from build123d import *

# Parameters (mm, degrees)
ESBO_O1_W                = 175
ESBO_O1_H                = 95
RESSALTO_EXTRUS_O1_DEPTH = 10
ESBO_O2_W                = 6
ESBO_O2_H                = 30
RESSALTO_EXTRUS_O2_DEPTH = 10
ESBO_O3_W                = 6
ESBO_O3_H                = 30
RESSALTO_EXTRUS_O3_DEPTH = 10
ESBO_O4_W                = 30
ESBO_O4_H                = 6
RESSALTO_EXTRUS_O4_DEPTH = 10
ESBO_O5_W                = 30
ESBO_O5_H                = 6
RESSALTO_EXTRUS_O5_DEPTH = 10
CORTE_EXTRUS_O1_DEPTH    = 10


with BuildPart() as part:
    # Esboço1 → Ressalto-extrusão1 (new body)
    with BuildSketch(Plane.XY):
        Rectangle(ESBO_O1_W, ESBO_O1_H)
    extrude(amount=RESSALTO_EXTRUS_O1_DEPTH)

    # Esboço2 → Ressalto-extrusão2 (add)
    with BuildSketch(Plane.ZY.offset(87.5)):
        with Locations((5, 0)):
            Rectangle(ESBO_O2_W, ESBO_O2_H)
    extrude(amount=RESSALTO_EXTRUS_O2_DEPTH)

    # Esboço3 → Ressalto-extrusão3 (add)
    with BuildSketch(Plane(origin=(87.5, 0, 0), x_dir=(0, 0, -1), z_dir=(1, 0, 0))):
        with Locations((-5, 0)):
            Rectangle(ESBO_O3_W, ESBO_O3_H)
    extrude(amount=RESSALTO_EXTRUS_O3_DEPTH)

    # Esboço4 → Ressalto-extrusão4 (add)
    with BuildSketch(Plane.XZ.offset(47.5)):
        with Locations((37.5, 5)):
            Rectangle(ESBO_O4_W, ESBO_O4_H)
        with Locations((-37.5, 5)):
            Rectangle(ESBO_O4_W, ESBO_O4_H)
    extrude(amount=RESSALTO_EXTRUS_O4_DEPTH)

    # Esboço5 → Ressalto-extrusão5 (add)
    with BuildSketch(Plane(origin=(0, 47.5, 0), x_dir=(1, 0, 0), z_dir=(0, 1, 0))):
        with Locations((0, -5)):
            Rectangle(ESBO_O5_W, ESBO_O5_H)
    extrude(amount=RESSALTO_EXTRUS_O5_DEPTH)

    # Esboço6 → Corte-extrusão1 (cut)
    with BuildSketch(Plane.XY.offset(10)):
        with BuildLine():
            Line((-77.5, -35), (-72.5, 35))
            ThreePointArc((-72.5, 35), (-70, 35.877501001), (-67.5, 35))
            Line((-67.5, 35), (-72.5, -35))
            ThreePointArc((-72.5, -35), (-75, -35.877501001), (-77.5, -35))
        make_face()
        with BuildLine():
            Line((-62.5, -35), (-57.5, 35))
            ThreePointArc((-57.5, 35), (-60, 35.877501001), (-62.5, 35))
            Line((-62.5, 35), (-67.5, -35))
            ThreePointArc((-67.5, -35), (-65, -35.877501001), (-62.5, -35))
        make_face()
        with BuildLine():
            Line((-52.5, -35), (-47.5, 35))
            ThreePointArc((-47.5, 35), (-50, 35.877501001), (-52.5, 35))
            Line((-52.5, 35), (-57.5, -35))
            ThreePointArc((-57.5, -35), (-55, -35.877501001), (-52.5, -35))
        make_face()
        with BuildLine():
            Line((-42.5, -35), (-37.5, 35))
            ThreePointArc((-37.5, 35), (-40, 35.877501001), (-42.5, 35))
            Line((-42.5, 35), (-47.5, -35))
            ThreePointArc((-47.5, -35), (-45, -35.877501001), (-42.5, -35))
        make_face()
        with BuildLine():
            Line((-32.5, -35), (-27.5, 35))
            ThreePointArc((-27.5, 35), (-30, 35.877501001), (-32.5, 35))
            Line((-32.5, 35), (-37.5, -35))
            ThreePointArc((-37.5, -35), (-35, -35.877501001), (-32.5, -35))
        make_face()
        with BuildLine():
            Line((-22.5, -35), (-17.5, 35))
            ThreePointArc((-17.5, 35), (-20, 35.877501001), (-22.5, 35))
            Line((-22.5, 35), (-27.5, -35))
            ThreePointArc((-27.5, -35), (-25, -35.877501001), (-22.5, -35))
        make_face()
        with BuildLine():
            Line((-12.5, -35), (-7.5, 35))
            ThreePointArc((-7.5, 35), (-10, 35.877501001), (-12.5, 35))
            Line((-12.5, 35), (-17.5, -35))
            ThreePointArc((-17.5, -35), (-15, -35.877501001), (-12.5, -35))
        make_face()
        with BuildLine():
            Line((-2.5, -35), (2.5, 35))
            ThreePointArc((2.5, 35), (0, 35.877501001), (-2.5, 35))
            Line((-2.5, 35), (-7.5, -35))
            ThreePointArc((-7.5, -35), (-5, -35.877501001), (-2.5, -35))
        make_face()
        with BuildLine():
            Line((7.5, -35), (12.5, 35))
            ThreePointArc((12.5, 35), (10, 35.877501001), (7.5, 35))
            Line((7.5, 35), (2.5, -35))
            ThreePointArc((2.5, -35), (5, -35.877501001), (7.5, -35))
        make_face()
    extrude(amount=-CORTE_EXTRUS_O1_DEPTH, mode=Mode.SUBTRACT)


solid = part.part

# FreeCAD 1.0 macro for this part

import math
import FreeCAD as App
import Part
import Sketcher
Q = App.Units.Quantity

doc = App.newDocument("Part")
body = doc.addObject("PartDesign::Body", "Body")

# Sketch on XY plane
sketch1 = doc.addObject("Sketcher::SketchObject", "Sketch")
body.addObject(sketch1)
sketch1.AttachmentSupport = (doc.XY_Plane, [""])
sketch1.MapMode = "FlatFace"
sketch1.addGeometry(Part.LineSegment(App.Vector(-87.5, 47.5, 0), App.Vector(-87.5, -47.5, 0)), False)
sketch1.addGeometry(Part.LineSegment(App.Vector(-87.5, -47.5, 0), App.Vector(87.5, -47.5, 0)), False)
sketch1.addGeometry(Part.LineSegment(App.Vector(87.5, -47.5, 0), App.Vector(87.5, 47.5, 0)), False)
sketch1.addGeometry(Part.LineSegment(App.Vector(87.5, 47.5, 0), App.Vector(-87.5, 47.5, 0)), False)
sketch1.addConstraint(Sketcher.Constraint("Coincident", 0, 2, 1, 1))
sketch1.addConstraint(Sketcher.Constraint("Coincident", 1, 2, 2, 1))
sketch1.addConstraint(Sketcher.Constraint("Coincident", 2, 2, 3, 1))
sketch1.addConstraint(Sketcher.Constraint("Coincident", 3, 2, 0, 1))
sketch1.addConstraint(Sketcher.Constraint("Vertical", 0))
sketch1.addConstraint(Sketcher.Constraint("Horizontal", 1))
sketch1.addConstraint(Sketcher.Constraint("Vertical", 2))
sketch1.addConstraint(Sketcher.Constraint("Horizontal", 3))
sketch1.addConstraint(Sketcher.Constraint("Symmetric", 0, 2, 2, 2, -1, 1))
sketch1.addConstraint(Sketcher.Constraint("DistanceX", 1, 1, 1, 2, Q("175 mm")))
sketch1.addConstraint(Sketcher.Constraint("DistanceY", 0, 2, 0, 1, Q("95 mm")))
pad1 = doc.addObject("PartDesign::Pad", "Pad")
body.addObject(pad1)
pad1.Profile = sketch1
pad1.Length = 10

# Sketch on YZ plane
sketch2 = doc.addObject("Sketcher::SketchObject", "Sketch001")
body.addObject(sketch2)
sketch2.AttachmentSupport = (doc.YZ_Plane, [""])
sketch2.MapMode = "FlatFace"
sketch2.AttachmentOffset = App.Placement(App.Vector(0, 0, -87.5), App.Rotation())
sketch2.addGeometry(Part.LineSegment(App.Vector(15, 2, 0), App.Vector(-15, 2, 0)), False)
sketch2.addGeometry(Part.LineSegment(App.Vector(-15, 2, 0), App.Vector(-15, 8, 0)), False)
sketch2.addGeometry(Part.LineSegment(App.Vector(-15, 8, 0), App.Vector(15, 8, 0)), False)
sketch2.addGeometry(Part.LineSegment(App.Vector(15, 8, 0), App.Vector(15, 2, 0)), False)
sketch2.addConstraint(Sketcher.Constraint("Coincident", 0, 2, 1, 1))
sketch2.addConstraint(Sketcher.Constraint("Coincident", 1, 2, 2, 1))
sketch2.addConstraint(Sketcher.Constraint("Coincident", 2, 2, 3, 1))
sketch2.addConstraint(Sketcher.Constraint("Coincident", 3, 2, 0, 1))
sketch2.addConstraint(Sketcher.Constraint("Horizontal", 0))
sketch2.addConstraint(Sketcher.Constraint("Vertical", 1))
sketch2.addConstraint(Sketcher.Constraint("Horizontal", 2))
sketch2.addConstraint(Sketcher.Constraint("Vertical", 3))
sketch2.addConstraint(Sketcher.Constraint("DistanceX", 0, 2, 0, 1, Q("30 mm")))
sketch2.addConstraint(Sketcher.Constraint("DistanceY", 1, 1, 1, 2, Q("6 mm")))
sketch2.addConstraint(Sketcher.Constraint("DistanceX", 0, 2, -1, 1, Q("15 mm")))
sketch2.addConstraint(Sketcher.Constraint("DistanceY", -1, 1, 0, 2, Q("2 mm")))
pad2 = doc.addObject("PartDesign::Pad", "Pad001")
body.addObject(pad2)
pad2.Profile = sketch2
pad2.Length = 10
pad2.Reversed = True

# Sketch on YZ plane
sketch3 = doc.addObject("Sketcher::SketchObject", "Sketch002")
body.addObject(sketch3)
sketch3.AttachmentSupport = (doc.YZ_Plane, [""])
sketch3.MapMode = "FlatFace"
sketch3.AttachmentOffset = App.Placement(App.Vector(0, 0, 87.5), App.Rotation())
sketch3.addGeometry(Part.LineSegment(App.Vector(15, 8, 0), App.Vector(-15, 8, 0)), False)
sketch3.addGeometry(Part.LineSegment(App.Vector(-15, 8, 0), App.Vector(-15, 2, 0)), False)
sketch3.addGeometry(Part.LineSegment(App.Vector(-15, 2, 0), App.Vector(15, 2, 0)), False)
sketch3.addGeometry(Part.LineSegment(App.Vector(15, 2, 0), App.Vector(15, 8, 0)), False)
sketch3.addConstraint(Sketcher.Constraint("Coincident", 0, 2, 1, 1))
sketch3.addConstraint(Sketcher.Constraint("Coincident", 1, 2, 2, 1))
sketch3.addConstraint(Sketcher.Constraint("Coincident", 2, 2, 3, 1))
sketch3.addConstraint(Sketcher.Constraint("Coincident", 3, 2, 0, 1))
sketch3.addConstraint(Sketcher.Constraint("Horizontal", 0))
sketch3.addConstraint(Sketcher.Constraint("Vertical", 1))
sketch3.addConstraint(Sketcher.Constraint("Horizontal", 2))
sketch3.addConstraint(Sketcher.Constraint("Vertical", 3))
sketch3.addConstraint(Sketcher.Constraint("DistanceX", 0, 2, 0, 1, Q("30 mm")))
sketch3.addConstraint(Sketcher.Constraint("DistanceY", 1, 2, 1, 1, Q("6 mm")))
sketch3.addConstraint(Sketcher.Constraint("DistanceX", 0, 2, -1, 1, Q("15 mm")))
sketch3.addConstraint(Sketcher.Constraint("DistanceY", -1, 1, 0, 2, Q("8 mm")))
pad3 = doc.addObject("PartDesign::Pad", "Pad002")
body.addObject(pad3)
pad3.Profile = sketch3
pad3.Length = 10

# Sketch on XZ plane
sketch4 = doc.addObject("Sketcher::SketchObject", "Sketch003")
body.addObject(sketch4)
sketch4.AttachmentSupport = (doc.XZ_Plane, [""])
sketch4.MapMode = "FlatFace"
sketch4.AttachmentOffset = App.Placement(App.Vector(0, 0, 47.5), App.Rotation())
sketch4.addGeometry(Part.LineSegment(App.Vector(22.5, 8, 0), App.Vector(22.5, 2, 0)), False)
sketch4.addGeometry(Part.LineSegment(App.Vector(22.5, 2, 0), App.Vector(52.5, 2, 0)), False)
sketch4.addGeometry(Part.LineSegment(App.Vector(52.5, 2, 0), App.Vector(52.5, 8, 0)), False)
sketch4.addGeometry(Part.LineSegment(App.Vector(52.5, 8, 0), App.Vector(22.5, 8, 0)), False)
sketch4.addGeometry(Part.LineSegment(App.Vector(-52.5, 8, 0), App.Vector(-52.5, 2, 0)), False)
sketch4.addGeometry(Part.LineSegment(App.Vector(-52.5, 2, 0), App.Vector(-22.5, 2, 0)), False)
sketch4.addGeometry(Part.LineSegment(App.Vector(-22.5, 2, 0), App.Vector(-22.5, 8, 0)), False)
sketch4.addGeometry(Part.LineSegment(App.Vector(-22.5, 8, 0), App.Vector(-52.5, 8, 0)), False)
sketch4.addConstraint(Sketcher.Constraint("Coincident", 0, 2, 1, 1))
sketch4.addConstraint(Sketcher.Constraint("Coincident", 1, 2, 2, 1))
sketch4.addConstraint(Sketcher.Constraint("Coincident", 2, 2, 3, 1))
sketch4.addConstraint(Sketcher.Constraint("Coincident", 3, 2, 0, 1))
sketch4.addConstraint(Sketcher.Constraint("Coincident", 4, 2, 5, 1))
sketch4.addConstraint(Sketcher.Constraint("Coincident", 5, 2, 6, 1))
sketch4.addConstraint(Sketcher.Constraint("Coincident", 6, 2, 7, 1))
sketch4.addConstraint(Sketcher.Constraint("Coincident", 7, 2, 4, 1))
sketch4.addConstraint(Sketcher.Constraint("Vertical", 0))
sketch4.addConstraint(Sketcher.Constraint("Horizontal", 1))
sketch4.addConstraint(Sketcher.Constraint("Vertical", 2))
sketch4.addConstraint(Sketcher.Constraint("Horizontal", 3))
sketch4.addConstraint(Sketcher.Constraint("Vertical", 4))
sketch4.addConstraint(Sketcher.Constraint("Horizontal", 5))
sketch4.addConstraint(Sketcher.Constraint("Vertical", 6))
sketch4.addConstraint(Sketcher.Constraint("Horizontal", 7))
sketch4.addConstraint(Sketcher.Constraint("Symmetric", 1, 2, 4, 2, -2))
sketch4.addConstraint(Sketcher.Constraint("Symmetric", 3, 2, 6, 2, -2))
sketch4.addConstraint(Sketcher.Constraint("DistanceX", 1, 1, 1, 2, Q("30 mm")))
sketch4.addConstraint(Sketcher.Constraint("DistanceY", 0, 2, 0, 1, Q("6 mm")))
sketch4.addConstraint(Sketcher.Constraint("DistanceY", -1, 1, 0, 2, Q("2 mm")))
sketch4.addConstraint(Sketcher.Constraint("DistanceX", 4, 2, 0, 2, Q("75 mm")))
pad4 = doc.addObject("PartDesign::Pad", "Pad003")
body.addObject(pad4)
pad4.Profile = sketch4
pad4.Length = 10

# Sketch on XZ plane
sketch5 = doc.addObject("Sketcher::SketchObject", "Sketch004")
body.addObject(sketch5)
sketch5.AttachmentSupport = (doc.XZ_Plane, [""])
sketch5.MapMode = "FlatFace"
sketch5.AttachmentOffset = App.Placement(App.Vector(0, 0, -47.5), App.Rotation())
sketch5.addGeometry(Part.LineSegment(App.Vector(-15, 2, 0), App.Vector(-15, 8, 0)), False)
sketch5.addGeometry(Part.LineSegment(App.Vector(-15, 8, 0), App.Vector(15, 8, 0)), False)
sketch5.addGeometry(Part.LineSegment(App.Vector(15, 8, 0), App.Vector(15, 2, 0)), False)
sketch5.addGeometry(Part.LineSegment(App.Vector(15, 2, 0), App.Vector(-15, 2, 0)), False)
sketch5.addConstraint(Sketcher.Constraint("Coincident", 0, 2, 1, 1))
sketch5.addConstraint(Sketcher.Constraint("Coincident", 1, 2, 2, 1))
sketch5.addConstraint(Sketcher.Constraint("Coincident", 2, 2, 3, 1))
sketch5.addConstraint(Sketcher.Constraint("Coincident", 3, 2, 0, 1))
sketch5.addConstraint(Sketcher.Constraint("Vertical", 0))
sketch5.addConstraint(Sketcher.Constraint("Horizontal", 1))
sketch5.addConstraint(Sketcher.Constraint("Vertical", 2))
sketch5.addConstraint(Sketcher.Constraint("Horizontal", 3))
sketch5.addConstraint(Sketcher.Constraint("DistanceX", 1, 1, 1, 2, Q("30 mm")))
sketch5.addConstraint(Sketcher.Constraint("DistanceY", 0, 1, 0, 2, Q("6 mm")))
sketch5.addConstraint(Sketcher.Constraint("DistanceX", 0, 2, -1, 1, Q("15 mm")))
sketch5.addConstraint(Sketcher.Constraint("DistanceY", -1, 1, 0, 2, Q("8 mm")))
pad5 = doc.addObject("PartDesign::Pad", "Pad004")
body.addObject(pad5)
pad5.Profile = sketch5
pad5.Length = 10
pad5.Reversed = True

# Sketch on XY plane
sketch6 = doc.addObject("Sketcher::SketchObject", "Sketch005")
body.addObject(sketch6)
sketch6.AttachmentSupport = (doc.XY_Plane, [""])
sketch6.MapMode = "FlatFace"
sketch6.AttachmentOffset = App.Placement(App.Vector(0, 0, 10), App.Rotation())
sketch6.addGeometry(Part.LineSegment(App.Vector(-72.5, 35, 0), App.Vector(-77.5, -35, 0)), False)
sketch6.addGeometry(Part.ArcOfCircle(Part.Circle(App.Vector(-75, -31.877501, 0), App.Vector(0, 0, 1), 4), math.radians(-128.682187), math.radians(-51.317813)), False)
sketch6.addGeometry(Part.LineSegment(App.Vector(-72.5, -35, 0), App.Vector(-67.5, 35, 0)), False)
sketch6.addGeometry(Part.ArcOfCircle(Part.Circle(App.Vector(-70, 31.877501, 0), App.Vector(0, 0, 1), 4), math.radians(51.317813), math.radians(128.682187)), False)
sketch6.addGeometry(Part.LineSegment(App.Vector(-62.5, -35, 0), App.Vector(-57.5, 35, 0)), False)
sketch6.addGeometry(Part.ArcOfCircle(Part.Circle(App.Vector(-60, 31.877501, 0), App.Vector(0, 0, 1), 4), math.radians(51.317813), math.radians(128.682187)), False)
sketch6.addGeometry(Part.LineSegment(App.Vector(-62.5, 35, 0), App.Vector(-67.5, -35, 0)), False)
sketch6.addGeometry(Part.ArcOfCircle(Part.Circle(App.Vector(-65, -31.877501, 0), App.Vector(0, 0, 1), 4), math.radians(-128.682187), math.radians(-51.317813)), False)
sketch6.addGeometry(Part.LineSegment(App.Vector(-52.5, -35, 0), App.Vector(-47.5, 35, 0)), False)
sketch6.addGeometry(Part.ArcOfCircle(Part.Circle(App.Vector(-50, 31.877501, 0), App.Vector(0, 0, 1), 4), math.radians(51.317813), math.radians(128.682187)), False)
sketch6.addGeometry(Part.LineSegment(App.Vector(-52.5, 35, 0), App.Vector(-57.5, -35, 0)), False)
sketch6.addGeometry(Part.ArcOfCircle(Part.Circle(App.Vector(-55, -31.877501, 0), App.Vector(0, 0, 1), 4), math.radians(-128.682187), math.radians(-51.317813)), False)
sketch6.addGeometry(Part.LineSegment(App.Vector(-42.5, -35, 0), App.Vector(-37.5, 35, 0)), False)
sketch6.addGeometry(Part.ArcOfCircle(Part.Circle(App.Vector(-40, 31.877501, 0), App.Vector(0, 0, 1), 4), math.radians(51.317813), math.radians(128.682187)), False)
sketch6.addGeometry(Part.LineSegment(App.Vector(-42.5, 35, 0), App.Vector(-47.5, -35, 0)), False)
sketch6.addGeometry(Part.ArcOfCircle(Part.Circle(App.Vector(-45, -31.877501, 0), App.Vector(0, 0, 1), 4), math.radians(-128.682187), math.radians(-51.317813)), False)
sketch6.addGeometry(Part.LineSegment(App.Vector(-32.5, -35, 0), App.Vector(-27.5, 35, 0)), False)
sketch6.addGeometry(Part.ArcOfCircle(Part.Circle(App.Vector(-30, 31.877501, 0), App.Vector(0, 0, 1), 4), math.radians(51.317813), math.radians(128.682187)), False)
sketch6.addGeometry(Part.LineSegment(App.Vector(-32.5, 35, 0), App.Vector(-37.5, -35, 0)), False)
sketch6.addGeometry(Part.ArcOfCircle(Part.Circle(App.Vector(-35, -31.877501, 0), App.Vector(0, 0, 1), 4), math.radians(-128.682187), math.radians(-51.317813)), False)
sketch6.addGeometry(Part.LineSegment(App.Vector(-22.5, -35, 0), App.Vector(-17.5, 35, 0)), False)
sketch6.addGeometry(Part.ArcOfCircle(Part.Circle(App.Vector(-20, 31.877501, 0), App.Vector(0, 0, 1), 4), math.radians(51.317813), math.radians(128.682187)), False)
sketch6.addGeometry(Part.LineSegment(App.Vector(-22.5, 35, 0), App.Vector(-27.5, -35, 0)), False)
sketch6.addGeometry(Part.ArcOfCircle(Part.Circle(App.Vector(-25, -31.877501, 0), App.Vector(0, 0, 1), 4), math.radians(-128.682187), math.radians(-51.317813)), False)
sketch6.addGeometry(Part.LineSegment(App.Vector(-12.5, -35, 0), App.Vector(-7.5, 35, 0)), False)
sketch6.addGeometry(Part.ArcOfCircle(Part.Circle(App.Vector(-10, 31.877501, 0), App.Vector(0, 0, 1), 4), math.radians(51.317813), math.radians(128.682187)), False)
sketch6.addGeometry(Part.LineSegment(App.Vector(-12.5, 35, 0), App.Vector(-17.5, -35, 0)), False)
sketch6.addGeometry(Part.ArcOfCircle(Part.Circle(App.Vector(-15, -31.877501, 0), App.Vector(0, 0, 1), 4), math.radians(-128.682187), math.radians(-51.317813)), False)
sketch6.addGeometry(Part.LineSegment(App.Vector(-2.5, -35, 0), App.Vector(2.5, 35, 0)), False)
sketch6.addGeometry(Part.ArcOfCircle(Part.Circle(App.Vector(0, 31.877501, 0), App.Vector(0, 0, 1), 4), math.radians(51.317813), math.radians(128.682187)), False)
sketch6.addGeometry(Part.LineSegment(App.Vector(-2.5, 35, 0), App.Vector(-7.5, -35, 0)), False)
sketch6.addGeometry(Part.ArcOfCircle(Part.Circle(App.Vector(-5, -31.877501, 0), App.Vector(0, 0, 1), 4), math.radians(-128.682187), math.radians(-51.317813)), False)
sketch6.addGeometry(Part.LineSegment(App.Vector(7.5, -35, 0), App.Vector(12.5, 35, 0)), False)
sketch6.addGeometry(Part.ArcOfCircle(Part.Circle(App.Vector(10, 31.877501, 0), App.Vector(0, 0, 1), 4), math.radians(51.317813), math.radians(128.682187)), False)
sketch6.addGeometry(Part.LineSegment(App.Vector(7.5, 35, 0), App.Vector(2.5, -35, 0)), False)
sketch6.addGeometry(Part.ArcOfCircle(Part.Circle(App.Vector(5, -31.877501, 0), App.Vector(0, 0, 1), 4), math.radians(-128.682187), math.radians(-51.317813)), False)
sketch6.addConstraint(Sketcher.Constraint("Coincident", 0, 2, 1, 1))
sketch6.addConstraint(Sketcher.Constraint("Coincident", 1, 2, 2, 1))
sketch6.addConstraint(Sketcher.Constraint("Coincident", 2, 2, 3, 1))
sketch6.addConstraint(Sketcher.Constraint("Coincident", 3, 2, 0, 1))
sketch6.addConstraint(Sketcher.Constraint("Coincident", 4, 2, 5, 1))
sketch6.addConstraint(Sketcher.Constraint("Coincident", 5, 2, 6, 1))
sketch6.addConstraint(Sketcher.Constraint("Coincident", 6, 2, 7, 1))
sketch6.addConstraint(Sketcher.Constraint("Coincident", 7, 2, 4, 1))
sketch6.addConstraint(Sketcher.Constraint("Coincident", 8, 2, 9, 1))
sketch6.addConstraint(Sketcher.Constraint("Coincident", 9, 2, 10, 1))
sketch6.addConstraint(Sketcher.Constraint("Coincident", 10, 2, 11, 1))
sketch6.addConstraint(Sketcher.Constraint("Coincident", 11, 2, 8, 1))
sketch6.addConstraint(Sketcher.Constraint("Coincident", 12, 2, 13, 1))
sketch6.addConstraint(Sketcher.Constraint("Coincident", 13, 2, 14, 1))
sketch6.addConstraint(Sketcher.Constraint("Coincident", 14, 2, 15, 1))
sketch6.addConstraint(Sketcher.Constraint("Coincident", 15, 2, 12, 1))
sketch6.addConstraint(Sketcher.Constraint("Coincident", 16, 2, 17, 1))
sketch6.addConstraint(Sketcher.Constraint("Coincident", 17, 2, 18, 1))
sketch6.addConstraint(Sketcher.Constraint("Coincident", 18, 2, 19, 1))
sketch6.addConstraint(Sketcher.Constraint("Coincident", 19, 2, 16, 1))
sketch6.addConstraint(Sketcher.Constraint("Coincident", 20, 2, 21, 1))
sketch6.addConstraint(Sketcher.Constraint("Coincident", 21, 2, 22, 1))
sketch6.addConstraint(Sketcher.Constraint("Coincident", 22, 2, 23, 1))
sketch6.addConstraint(Sketcher.Constraint("Coincident", 23, 2, 20, 1))
sketch6.addConstraint(Sketcher.Constraint("Coincident", 24, 2, 25, 1))
sketch6.addConstraint(Sketcher.Constraint("Coincident", 25, 2, 26, 1))
sketch6.addConstraint(Sketcher.Constraint("Coincident", 26, 2, 27, 1))
sketch6.addConstraint(Sketcher.Constraint("Coincident", 27, 2, 24, 1))
sketch6.addConstraint(Sketcher.Constraint("Coincident", 28, 2, 29, 1))
sketch6.addConstraint(Sketcher.Constraint("Coincident", 29, 2, 30, 1))
sketch6.addConstraint(Sketcher.Constraint("Coincident", 30, 2, 31, 1))
sketch6.addConstraint(Sketcher.Constraint("Coincident", 31, 2, 28, 1))
sketch6.addConstraint(Sketcher.Constraint("Coincident", 32, 2, 33, 1))
sketch6.addConstraint(Sketcher.Constraint("Coincident", 33, 2, 34, 1))
sketch6.addConstraint(Sketcher.Constraint("Coincident", 34, 2, 35, 1))
sketch6.addConstraint(Sketcher.Constraint("Coincident", 35, 2, 32, 1))
sketch6.addConstraint(Sketcher.Constraint("Equal", 1, 3))
sketch6.addConstraint(Sketcher.Constraint("Equal", 3, 5))
sketch6.addConstraint(Sketcher.Constraint("Equal", 5, 7))
sketch6.addConstraint(Sketcher.Constraint("Equal", 7, 9))
sketch6.addConstraint(Sketcher.Constraint("Equal", 9, 11))
sketch6.addConstraint(Sketcher.Constraint("Equal", 11, 13))
sketch6.addConstraint(Sketcher.Constraint("Equal", 13, 15))
sketch6.addConstraint(Sketcher.Constraint("Equal", 15, 17))
sketch6.addConstraint(Sketcher.Constraint("Equal", 17, 19))
sketch6.addConstraint(Sketcher.Constraint("Equal", 19, 21))
sketch6.addConstraint(Sketcher.Constraint("Equal", 21, 23))
sketch6.addConstraint(Sketcher.Constraint("Equal", 23, 25))
sketch6.addConstraint(Sketcher.Constraint("Equal", 25, 27))
sketch6.addConstraint(Sketcher.Constraint("Equal", 27, 29))
sketch6.addConstraint(Sketcher.Constraint("Equal", 29, 31))
sketch6.addConstraint(Sketcher.Constraint("Equal", 31, 33))
sketch6.addConstraint(Sketcher.Constraint("Equal", 33, 35))
sketch6.addConstraint(Sketcher.Constraint("Symmetric", 28, 2, 31, 2, -1, 1))
sketch6.addConstraint(Sketcher.Constraint("Symmetric", 27, 2, 32, 2, -1, 1))
sketch6.addConstraint(Sketcher.Constraint("Symmetric", 30, 2, 33, 2, -1, 1))
sketch6.addConstraint(Sketcher.Constraint("Symmetric", 29, 2, 34, 2, -1, 1))
sketch6.addConstraint(Sketcher.Constraint("Symmetric", 24, 2, 35, 2, -1, 1))
sketch6.addConstraint(Sketcher.Constraint("Symmetric", 25, 3, 33, 3, -2))
sketch6.addConstraint(Sketcher.Constraint("Symmetric", 31, 3, 35, 3, -2))
sketch6.addConstraint(Sketcher.Constraint("Symmetric", 1, 2, 3, 2, -1))
sketch6.addConstraint(Sketcher.Constraint("Symmetric", 2, 2, 6, 2, -1))
sketch6.addConstraint(Sketcher.Constraint("Symmetric", 5, 2, 7, 2, -1))
sketch6.addConstraint(Sketcher.Constraint("Symmetric", 4, 2, 10, 2, -1))
sketch6.addConstraint(Sketcher.Constraint("Symmetric", 9, 2, 11, 2, -1))
sketch6.addConstraint(Sketcher.Constraint("Symmetric", 8, 2, 14, 2, -1))
sketch6.addConstraint(Sketcher.Constraint("Symmetric", 13, 2, 15, 2, -1))
sketch6.addConstraint(Sketcher.Constraint("Symmetric", 12, 2, 18, 2, -1))
sketch6.addConstraint(Sketcher.Constraint("Symmetric", 17, 2, 19, 2, -1))
sketch6.addConstraint(Sketcher.Constraint("Symmetric", 16, 2, 22, 2, -1))
sketch6.addConstraint(Sketcher.Constraint("Symmetric", 21, 2, 23, 2, -1))
sketch6.addConstraint(Sketcher.Constraint("Symmetric", 20, 2, 26, 2, -1))
sketch6.addConstraint(Sketcher.Constraint("PointOnObject", 29, 3, -2))
sketch6.addConstraint(Sketcher.Constraint("Parallel", 0, 2))
sketch6.addConstraint(Sketcher.Constraint("Parallel", 2, 4))
sketch6.addConstraint(Sketcher.Constraint("Parallel", 4, 6))
sketch6.addConstraint(Sketcher.Constraint("Parallel", 6, 8))
sketch6.addConstraint(Sketcher.Constraint("Parallel", 8, 10))
sketch6.addConstraint(Sketcher.Constraint("Parallel", 10, 12))
sketch6.addConstraint(Sketcher.Constraint("Parallel", 12, 14))
sketch6.addConstraint(Sketcher.Constraint("Parallel", 14, 16))
sketch6.addConstraint(Sketcher.Constraint("Parallel", 16, 18))
sketch6.addConstraint(Sketcher.Constraint("Parallel", 18, 20))
sketch6.addConstraint(Sketcher.Constraint("Parallel", 20, 22))
sketch6.addConstraint(Sketcher.Constraint("Parallel", 22, 24))
sketch6.addConstraint(Sketcher.Constraint("Parallel", 24, 26))
sketch6.addConstraint(Sketcher.Constraint("Parallel", 26, 28))
sketch6.addConstraint(Sketcher.Constraint("Parallel", 28, 30))
sketch6.addConstraint(Sketcher.Constraint("Horizontal", 3, 3, 5, 3))
sketch6.addConstraint(Sketcher.Constraint("Horizontal", 1, 3, 7, 3))
sketch6.addConstraint(Sketcher.Constraint("Horizontal", 5, 3, 9, 3))
sketch6.addConstraint(Sketcher.Constraint("Horizontal", 7, 3, 11, 3))
sketch6.addConstraint(Sketcher.Constraint("Horizontal", 9, 3, 13, 3))
sketch6.addConstraint(Sketcher.Constraint("Horizontal", 11, 3, 15, 3))
sketch6.addConstraint(Sketcher.Constraint("Horizontal", 13, 3, 17, 3))
sketch6.addConstraint(Sketcher.Constraint("Horizontal", 15, 3, 19, 3))
sketch6.addConstraint(Sketcher.Constraint("Horizontal", 17, 3, 21, 3))
sketch6.addConstraint(Sketcher.Constraint("Horizontal", 19, 3, 23, 3))
sketch6.addConstraint(Sketcher.Constraint("Horizontal", 21, 3, 25, 3))
sketch6.addConstraint(Sketcher.Constraint("Horizontal", 23, 3, 27, 3))
sketch6.addConstraint(Sketcher.Constraint("Horizontal", 25, 3, 29, 3))
sketch6.addConstraint(Sketcher.Constraint("Horizontal", 27, 3, 31, 3))
sketch6.addConstraint(Sketcher.Constraint("Horizontal", 0, 2, 1, 2))
sketch6.addConstraint(Sketcher.Constraint("Horizontal", 2, 2, 3, 2))
sketch6.addConstraint(Sketcher.Constraint("Radius", 1, Q("4 mm")))
sketch6.addConstraint(Sketcher.Constraint("DistanceX", 1, 3, -1, 1, Q("75 mm")))
sketch6.addConstraint(Sketcher.Constraint("DistanceY", 0, 2, -1, 1, Q("35 mm")))
pocket1 = doc.addObject("PartDesign::Pocket", "Pocket")
body.addObject(pocket1)
pocket1.Profile = sketch6
pocket1.Length = 10

doc.recompute()
